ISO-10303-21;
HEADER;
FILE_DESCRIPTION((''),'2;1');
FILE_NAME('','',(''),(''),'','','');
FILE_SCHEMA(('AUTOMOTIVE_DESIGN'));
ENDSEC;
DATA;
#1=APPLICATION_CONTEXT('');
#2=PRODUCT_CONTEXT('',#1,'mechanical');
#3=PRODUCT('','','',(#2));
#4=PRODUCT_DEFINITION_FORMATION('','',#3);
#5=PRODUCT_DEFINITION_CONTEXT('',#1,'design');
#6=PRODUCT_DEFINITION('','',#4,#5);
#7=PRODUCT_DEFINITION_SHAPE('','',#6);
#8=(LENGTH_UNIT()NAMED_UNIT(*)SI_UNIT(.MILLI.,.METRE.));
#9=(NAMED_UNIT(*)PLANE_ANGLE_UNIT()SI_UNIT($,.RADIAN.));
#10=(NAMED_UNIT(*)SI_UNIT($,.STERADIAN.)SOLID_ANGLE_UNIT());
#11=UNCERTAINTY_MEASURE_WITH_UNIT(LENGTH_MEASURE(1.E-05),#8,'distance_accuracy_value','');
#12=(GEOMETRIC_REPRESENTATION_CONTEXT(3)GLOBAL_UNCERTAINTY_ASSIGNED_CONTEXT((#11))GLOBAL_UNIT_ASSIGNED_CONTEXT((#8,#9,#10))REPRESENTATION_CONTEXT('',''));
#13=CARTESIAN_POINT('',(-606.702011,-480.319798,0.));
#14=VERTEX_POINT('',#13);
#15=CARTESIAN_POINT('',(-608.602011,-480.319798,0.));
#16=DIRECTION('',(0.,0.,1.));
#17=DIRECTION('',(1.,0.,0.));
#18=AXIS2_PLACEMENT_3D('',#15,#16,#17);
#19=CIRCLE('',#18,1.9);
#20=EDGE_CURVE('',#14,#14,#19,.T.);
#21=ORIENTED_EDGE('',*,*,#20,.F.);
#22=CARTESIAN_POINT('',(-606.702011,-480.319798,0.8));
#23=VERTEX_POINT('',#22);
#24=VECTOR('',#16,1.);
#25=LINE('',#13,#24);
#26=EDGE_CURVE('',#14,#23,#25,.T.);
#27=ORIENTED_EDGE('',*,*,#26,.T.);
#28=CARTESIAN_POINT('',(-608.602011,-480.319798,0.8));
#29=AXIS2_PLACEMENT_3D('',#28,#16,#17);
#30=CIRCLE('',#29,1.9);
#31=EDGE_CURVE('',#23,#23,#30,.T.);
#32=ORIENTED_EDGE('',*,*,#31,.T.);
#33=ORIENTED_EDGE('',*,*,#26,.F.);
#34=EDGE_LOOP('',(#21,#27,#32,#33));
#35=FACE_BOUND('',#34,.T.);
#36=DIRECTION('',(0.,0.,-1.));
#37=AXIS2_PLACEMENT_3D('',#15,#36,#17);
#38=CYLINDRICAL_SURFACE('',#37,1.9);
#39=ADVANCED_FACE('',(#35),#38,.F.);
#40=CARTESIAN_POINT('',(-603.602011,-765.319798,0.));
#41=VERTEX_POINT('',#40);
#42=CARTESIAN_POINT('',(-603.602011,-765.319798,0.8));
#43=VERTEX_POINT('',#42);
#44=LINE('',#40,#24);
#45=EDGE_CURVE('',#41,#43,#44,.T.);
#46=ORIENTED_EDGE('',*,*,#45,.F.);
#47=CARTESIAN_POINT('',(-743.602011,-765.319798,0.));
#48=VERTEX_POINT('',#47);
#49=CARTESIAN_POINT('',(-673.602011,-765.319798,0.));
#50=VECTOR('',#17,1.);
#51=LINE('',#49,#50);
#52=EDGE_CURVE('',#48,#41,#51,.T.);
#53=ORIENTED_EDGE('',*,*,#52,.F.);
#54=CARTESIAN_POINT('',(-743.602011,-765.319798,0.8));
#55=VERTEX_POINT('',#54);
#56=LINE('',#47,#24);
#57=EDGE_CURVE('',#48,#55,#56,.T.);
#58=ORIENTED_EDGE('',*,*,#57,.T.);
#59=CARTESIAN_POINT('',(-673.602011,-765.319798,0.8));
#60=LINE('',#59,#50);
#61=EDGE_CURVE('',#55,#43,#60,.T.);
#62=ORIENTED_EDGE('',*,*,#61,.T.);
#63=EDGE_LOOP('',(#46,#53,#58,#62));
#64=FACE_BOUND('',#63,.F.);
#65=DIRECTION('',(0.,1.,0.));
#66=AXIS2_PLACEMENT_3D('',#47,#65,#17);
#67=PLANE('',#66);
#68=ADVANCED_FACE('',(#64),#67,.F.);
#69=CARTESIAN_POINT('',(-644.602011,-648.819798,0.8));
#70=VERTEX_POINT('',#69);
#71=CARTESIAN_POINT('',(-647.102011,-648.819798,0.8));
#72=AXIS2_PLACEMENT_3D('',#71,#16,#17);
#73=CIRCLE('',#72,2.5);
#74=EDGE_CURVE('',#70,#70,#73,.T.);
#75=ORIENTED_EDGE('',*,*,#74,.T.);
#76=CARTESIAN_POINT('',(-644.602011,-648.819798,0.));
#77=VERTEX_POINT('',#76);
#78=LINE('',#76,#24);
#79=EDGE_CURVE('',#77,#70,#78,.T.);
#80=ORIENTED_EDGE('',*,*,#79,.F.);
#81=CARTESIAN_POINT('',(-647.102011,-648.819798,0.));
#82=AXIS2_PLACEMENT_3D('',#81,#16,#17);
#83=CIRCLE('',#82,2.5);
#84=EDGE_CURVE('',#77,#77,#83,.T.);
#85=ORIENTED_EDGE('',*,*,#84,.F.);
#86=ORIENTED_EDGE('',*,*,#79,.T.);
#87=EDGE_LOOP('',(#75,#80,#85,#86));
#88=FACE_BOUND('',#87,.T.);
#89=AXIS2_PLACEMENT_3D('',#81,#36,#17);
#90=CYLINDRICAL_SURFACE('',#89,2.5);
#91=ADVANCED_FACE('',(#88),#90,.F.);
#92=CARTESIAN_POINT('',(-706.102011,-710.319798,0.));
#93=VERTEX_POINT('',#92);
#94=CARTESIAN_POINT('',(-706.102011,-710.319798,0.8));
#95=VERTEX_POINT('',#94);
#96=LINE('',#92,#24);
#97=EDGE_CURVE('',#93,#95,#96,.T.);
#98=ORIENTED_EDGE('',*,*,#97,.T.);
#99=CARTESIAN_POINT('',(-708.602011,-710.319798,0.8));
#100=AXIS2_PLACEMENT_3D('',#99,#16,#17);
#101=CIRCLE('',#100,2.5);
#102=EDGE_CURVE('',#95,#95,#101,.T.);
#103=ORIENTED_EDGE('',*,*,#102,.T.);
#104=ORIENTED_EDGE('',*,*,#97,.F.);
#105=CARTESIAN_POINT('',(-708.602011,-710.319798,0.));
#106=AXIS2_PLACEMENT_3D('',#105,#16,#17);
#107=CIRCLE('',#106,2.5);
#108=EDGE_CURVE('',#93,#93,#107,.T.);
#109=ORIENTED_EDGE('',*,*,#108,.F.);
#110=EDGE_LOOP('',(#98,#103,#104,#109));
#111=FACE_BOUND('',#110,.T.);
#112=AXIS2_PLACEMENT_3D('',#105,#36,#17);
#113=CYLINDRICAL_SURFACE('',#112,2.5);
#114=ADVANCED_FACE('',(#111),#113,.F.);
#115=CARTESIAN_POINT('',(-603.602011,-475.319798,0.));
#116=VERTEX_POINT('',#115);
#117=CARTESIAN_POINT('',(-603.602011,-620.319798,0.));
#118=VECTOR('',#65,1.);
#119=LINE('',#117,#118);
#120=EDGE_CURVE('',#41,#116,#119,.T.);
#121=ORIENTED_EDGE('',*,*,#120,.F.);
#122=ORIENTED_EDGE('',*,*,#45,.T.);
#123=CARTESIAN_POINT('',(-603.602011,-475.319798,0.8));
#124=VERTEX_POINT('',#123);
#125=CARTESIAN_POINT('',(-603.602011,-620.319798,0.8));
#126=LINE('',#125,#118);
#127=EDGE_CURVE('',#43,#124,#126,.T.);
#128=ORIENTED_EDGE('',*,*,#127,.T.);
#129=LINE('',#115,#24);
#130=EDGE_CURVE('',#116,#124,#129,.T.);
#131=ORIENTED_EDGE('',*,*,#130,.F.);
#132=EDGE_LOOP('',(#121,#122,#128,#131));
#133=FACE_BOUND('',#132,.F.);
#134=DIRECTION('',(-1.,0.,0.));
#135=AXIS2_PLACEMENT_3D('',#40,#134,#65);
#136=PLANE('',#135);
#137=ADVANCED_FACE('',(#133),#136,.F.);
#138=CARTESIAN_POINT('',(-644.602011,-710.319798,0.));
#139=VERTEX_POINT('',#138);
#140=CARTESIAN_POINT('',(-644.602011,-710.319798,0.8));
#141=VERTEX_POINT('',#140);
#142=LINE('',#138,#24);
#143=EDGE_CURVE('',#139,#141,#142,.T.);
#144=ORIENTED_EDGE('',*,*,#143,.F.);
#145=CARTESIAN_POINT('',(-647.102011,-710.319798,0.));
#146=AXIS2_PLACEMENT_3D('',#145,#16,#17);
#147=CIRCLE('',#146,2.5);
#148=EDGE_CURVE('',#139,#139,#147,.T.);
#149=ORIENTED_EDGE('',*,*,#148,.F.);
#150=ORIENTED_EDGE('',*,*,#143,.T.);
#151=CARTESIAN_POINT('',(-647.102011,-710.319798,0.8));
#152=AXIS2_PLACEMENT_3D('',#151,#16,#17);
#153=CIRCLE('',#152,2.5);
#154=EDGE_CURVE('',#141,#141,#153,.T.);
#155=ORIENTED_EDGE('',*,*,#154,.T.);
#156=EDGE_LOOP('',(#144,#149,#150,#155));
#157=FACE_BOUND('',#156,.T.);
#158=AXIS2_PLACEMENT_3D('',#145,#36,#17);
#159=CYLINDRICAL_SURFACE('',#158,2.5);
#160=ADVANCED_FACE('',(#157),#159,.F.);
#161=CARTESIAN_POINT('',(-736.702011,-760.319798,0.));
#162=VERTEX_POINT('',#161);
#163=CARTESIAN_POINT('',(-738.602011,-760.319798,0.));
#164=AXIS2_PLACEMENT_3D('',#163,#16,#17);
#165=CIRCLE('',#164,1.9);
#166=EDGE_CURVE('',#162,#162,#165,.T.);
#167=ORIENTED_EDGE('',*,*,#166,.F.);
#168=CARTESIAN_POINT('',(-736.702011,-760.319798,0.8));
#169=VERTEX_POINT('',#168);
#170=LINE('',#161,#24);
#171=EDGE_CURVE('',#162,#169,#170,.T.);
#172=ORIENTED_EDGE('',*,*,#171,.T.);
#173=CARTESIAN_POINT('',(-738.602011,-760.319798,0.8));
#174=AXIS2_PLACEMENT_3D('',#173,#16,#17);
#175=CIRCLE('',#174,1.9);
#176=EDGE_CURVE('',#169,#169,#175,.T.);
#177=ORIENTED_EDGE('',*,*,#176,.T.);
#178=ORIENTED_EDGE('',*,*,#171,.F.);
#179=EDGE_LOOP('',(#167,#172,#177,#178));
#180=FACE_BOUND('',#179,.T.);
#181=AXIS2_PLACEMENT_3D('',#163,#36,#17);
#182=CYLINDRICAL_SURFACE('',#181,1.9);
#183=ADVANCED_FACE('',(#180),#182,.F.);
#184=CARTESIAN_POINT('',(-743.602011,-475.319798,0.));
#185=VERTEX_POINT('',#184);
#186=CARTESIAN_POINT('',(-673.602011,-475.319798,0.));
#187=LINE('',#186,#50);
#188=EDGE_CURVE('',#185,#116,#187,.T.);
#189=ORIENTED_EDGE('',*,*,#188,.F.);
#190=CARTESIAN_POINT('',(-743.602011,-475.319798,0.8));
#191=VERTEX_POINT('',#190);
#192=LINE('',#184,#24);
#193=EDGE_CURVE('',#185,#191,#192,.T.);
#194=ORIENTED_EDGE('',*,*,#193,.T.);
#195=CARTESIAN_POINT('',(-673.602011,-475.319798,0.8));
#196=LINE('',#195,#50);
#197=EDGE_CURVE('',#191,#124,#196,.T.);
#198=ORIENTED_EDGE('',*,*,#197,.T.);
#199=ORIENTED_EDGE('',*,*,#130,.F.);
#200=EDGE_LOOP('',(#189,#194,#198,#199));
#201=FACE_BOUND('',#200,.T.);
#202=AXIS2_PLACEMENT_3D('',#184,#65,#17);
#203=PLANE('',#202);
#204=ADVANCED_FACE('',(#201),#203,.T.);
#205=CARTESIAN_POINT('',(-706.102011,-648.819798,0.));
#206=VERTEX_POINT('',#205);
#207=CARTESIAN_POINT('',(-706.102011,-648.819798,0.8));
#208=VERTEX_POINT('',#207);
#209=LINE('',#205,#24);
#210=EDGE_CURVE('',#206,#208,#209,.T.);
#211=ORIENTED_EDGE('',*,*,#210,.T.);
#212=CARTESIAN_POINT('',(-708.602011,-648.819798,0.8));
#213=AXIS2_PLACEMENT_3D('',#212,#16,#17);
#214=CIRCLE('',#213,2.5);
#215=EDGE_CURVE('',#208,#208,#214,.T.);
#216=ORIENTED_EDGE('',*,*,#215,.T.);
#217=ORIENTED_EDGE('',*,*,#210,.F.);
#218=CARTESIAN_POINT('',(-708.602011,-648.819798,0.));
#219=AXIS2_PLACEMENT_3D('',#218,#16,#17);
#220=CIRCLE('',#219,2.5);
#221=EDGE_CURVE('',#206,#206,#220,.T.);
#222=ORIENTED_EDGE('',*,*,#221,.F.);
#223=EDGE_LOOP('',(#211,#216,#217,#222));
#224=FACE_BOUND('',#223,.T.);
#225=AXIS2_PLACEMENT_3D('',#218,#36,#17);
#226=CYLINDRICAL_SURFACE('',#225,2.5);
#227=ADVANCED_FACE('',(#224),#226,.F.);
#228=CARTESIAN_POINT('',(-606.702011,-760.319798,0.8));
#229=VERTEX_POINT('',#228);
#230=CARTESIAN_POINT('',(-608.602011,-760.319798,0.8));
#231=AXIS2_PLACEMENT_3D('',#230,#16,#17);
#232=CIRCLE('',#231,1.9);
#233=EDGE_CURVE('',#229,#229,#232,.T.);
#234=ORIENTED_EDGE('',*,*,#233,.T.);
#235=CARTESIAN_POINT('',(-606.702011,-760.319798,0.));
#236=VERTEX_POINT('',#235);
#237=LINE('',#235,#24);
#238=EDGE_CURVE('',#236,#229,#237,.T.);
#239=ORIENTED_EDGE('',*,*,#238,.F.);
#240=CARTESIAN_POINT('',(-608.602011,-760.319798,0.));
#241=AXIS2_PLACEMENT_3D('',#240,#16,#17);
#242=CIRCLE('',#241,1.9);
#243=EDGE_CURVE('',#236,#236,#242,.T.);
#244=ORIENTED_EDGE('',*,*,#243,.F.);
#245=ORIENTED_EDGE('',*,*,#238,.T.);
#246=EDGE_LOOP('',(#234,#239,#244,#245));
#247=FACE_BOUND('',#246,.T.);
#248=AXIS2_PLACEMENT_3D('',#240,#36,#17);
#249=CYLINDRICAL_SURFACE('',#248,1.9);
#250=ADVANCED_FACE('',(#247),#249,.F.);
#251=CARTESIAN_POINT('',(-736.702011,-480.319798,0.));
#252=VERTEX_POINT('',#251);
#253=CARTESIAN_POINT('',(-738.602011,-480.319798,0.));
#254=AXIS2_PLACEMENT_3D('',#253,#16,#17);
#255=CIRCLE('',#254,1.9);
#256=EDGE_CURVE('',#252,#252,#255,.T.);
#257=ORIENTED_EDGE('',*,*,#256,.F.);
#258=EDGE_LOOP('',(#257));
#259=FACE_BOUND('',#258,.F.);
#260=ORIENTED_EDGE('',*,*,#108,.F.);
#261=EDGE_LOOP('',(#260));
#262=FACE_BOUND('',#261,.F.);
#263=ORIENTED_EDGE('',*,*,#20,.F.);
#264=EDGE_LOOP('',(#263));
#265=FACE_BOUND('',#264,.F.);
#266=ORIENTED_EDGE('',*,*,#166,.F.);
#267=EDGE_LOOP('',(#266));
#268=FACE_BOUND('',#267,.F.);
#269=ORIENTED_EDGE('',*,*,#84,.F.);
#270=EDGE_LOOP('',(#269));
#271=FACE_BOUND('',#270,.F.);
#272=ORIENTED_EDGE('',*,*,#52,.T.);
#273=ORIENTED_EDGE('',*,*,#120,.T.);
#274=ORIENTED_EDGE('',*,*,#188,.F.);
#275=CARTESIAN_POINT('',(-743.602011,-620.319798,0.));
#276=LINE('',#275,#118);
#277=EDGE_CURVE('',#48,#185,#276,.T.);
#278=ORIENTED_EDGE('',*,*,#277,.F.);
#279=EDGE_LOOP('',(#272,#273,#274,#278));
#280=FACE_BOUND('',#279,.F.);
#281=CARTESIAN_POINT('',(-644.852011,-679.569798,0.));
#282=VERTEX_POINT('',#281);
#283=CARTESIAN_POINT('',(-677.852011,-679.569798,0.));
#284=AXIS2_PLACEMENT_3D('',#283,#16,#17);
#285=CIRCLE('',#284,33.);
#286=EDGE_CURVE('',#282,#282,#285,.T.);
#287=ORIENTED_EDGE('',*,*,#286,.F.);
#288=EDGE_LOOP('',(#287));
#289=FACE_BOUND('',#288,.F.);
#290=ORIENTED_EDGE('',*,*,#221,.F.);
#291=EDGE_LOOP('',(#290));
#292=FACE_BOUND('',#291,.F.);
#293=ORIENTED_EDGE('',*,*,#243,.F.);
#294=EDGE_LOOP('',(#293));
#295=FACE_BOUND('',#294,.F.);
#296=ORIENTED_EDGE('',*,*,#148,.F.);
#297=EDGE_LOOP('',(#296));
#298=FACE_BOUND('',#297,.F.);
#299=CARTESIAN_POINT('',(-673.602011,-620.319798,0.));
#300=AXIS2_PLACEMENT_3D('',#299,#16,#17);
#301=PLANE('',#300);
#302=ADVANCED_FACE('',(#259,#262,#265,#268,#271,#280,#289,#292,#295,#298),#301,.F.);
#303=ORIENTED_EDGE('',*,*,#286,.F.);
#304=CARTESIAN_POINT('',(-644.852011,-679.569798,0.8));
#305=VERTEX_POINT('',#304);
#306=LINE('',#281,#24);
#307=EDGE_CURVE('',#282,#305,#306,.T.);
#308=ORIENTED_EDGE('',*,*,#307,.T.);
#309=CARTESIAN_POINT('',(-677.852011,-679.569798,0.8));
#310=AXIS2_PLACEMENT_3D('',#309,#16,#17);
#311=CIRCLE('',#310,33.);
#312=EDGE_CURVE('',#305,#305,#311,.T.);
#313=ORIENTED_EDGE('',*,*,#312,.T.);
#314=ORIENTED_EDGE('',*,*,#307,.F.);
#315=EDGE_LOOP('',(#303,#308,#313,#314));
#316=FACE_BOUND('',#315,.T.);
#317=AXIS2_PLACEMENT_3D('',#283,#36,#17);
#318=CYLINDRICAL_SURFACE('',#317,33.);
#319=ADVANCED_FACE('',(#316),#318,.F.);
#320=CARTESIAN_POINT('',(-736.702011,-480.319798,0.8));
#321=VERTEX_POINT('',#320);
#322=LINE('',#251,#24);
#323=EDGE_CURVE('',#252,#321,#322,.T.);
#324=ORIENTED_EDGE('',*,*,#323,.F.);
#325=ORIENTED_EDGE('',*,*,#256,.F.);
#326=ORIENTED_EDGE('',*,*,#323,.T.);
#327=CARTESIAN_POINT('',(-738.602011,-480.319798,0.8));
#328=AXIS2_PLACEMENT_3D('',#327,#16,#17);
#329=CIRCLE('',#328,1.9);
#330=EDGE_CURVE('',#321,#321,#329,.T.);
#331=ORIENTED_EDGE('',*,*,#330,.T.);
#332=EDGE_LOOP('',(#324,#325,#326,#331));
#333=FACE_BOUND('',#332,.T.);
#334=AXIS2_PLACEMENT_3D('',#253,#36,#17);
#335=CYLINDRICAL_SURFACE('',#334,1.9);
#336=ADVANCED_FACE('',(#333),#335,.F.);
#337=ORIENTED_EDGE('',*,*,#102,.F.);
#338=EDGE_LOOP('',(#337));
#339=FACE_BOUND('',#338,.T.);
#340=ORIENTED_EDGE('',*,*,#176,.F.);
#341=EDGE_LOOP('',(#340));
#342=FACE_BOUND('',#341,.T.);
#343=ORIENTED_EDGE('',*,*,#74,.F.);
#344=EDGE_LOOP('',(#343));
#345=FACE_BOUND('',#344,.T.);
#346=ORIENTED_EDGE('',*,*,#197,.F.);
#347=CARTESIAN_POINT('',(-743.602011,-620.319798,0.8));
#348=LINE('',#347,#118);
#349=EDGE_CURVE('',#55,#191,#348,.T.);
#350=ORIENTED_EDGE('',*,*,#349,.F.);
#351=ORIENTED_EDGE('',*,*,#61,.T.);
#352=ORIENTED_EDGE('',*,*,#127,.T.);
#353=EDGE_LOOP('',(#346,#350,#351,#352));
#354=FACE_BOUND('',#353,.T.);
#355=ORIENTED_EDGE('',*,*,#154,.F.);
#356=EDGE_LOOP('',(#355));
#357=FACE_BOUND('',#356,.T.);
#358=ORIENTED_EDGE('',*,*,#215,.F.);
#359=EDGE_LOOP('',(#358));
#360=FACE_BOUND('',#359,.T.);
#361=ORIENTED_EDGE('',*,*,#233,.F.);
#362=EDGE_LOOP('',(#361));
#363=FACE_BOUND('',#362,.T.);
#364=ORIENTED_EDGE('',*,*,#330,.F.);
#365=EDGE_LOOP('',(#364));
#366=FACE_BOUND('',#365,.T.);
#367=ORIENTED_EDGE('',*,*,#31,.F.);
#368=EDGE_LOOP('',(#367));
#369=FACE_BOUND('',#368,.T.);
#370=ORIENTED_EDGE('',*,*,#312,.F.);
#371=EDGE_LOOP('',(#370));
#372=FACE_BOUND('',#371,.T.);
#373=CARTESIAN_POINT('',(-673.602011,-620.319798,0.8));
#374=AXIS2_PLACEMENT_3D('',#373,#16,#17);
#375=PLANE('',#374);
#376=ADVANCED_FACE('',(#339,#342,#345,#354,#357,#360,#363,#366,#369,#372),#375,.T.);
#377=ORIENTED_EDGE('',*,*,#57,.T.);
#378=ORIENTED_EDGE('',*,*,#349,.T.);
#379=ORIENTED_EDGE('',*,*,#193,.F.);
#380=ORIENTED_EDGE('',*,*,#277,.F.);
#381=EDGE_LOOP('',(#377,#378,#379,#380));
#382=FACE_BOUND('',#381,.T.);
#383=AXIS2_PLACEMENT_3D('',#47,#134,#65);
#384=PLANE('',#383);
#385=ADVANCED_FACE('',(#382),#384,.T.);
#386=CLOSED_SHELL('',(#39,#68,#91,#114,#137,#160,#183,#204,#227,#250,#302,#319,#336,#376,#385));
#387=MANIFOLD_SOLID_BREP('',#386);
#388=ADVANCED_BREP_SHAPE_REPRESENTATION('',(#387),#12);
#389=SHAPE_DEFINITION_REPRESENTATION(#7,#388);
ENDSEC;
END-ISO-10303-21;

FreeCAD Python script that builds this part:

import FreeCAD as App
import Part
import Sketcher
from FreeCAD import Vector
Q = App.Units.Quantity

doc = App.newDocument("Part")
body = doc.addObject("PartDesign::Body", "Body")

# Sketch on XY plane
sketch1 = body.newObject("Sketcher::SketchObject", "Sketch")
sketch1.AttachmentSupport = (doc.getObject("XY_Plane"), [""])
sketch1.MapMode = "FlatFace"
sketch1.addGeometry(Part.LineSegment(Vector(-743.6, -475.3, 0), Vector(-743.6, -765.3, 0)), False)
sketch1.addGeometry(Part.LineSegment(Vector(-743.6, -765.3, 0), Vector(-603.6, -765.3, 0)), False)
sketch1.addGeometry(Part.LineSegment(Vector(-603.6, -765.3, 0), Vector(-603.6, -475.3, 0)), False)
sketch1.addGeometry(Part.LineSegment(Vector(-603.6, -475.3, 0), Vector(-743.6, -475.3, 0)), False)
sketch1.addGeometry(Part.Circle(Vector(-738.6, -760.3, 0), Vector(0, 0, 1), 1.9), False)
sketch1.addGeometry(Part.Circle(Vector(-708.6, -710.3, 0), Vector(0, 0, 1), 2.5), False)
sketch1.addGeometry(Part.Circle(Vector(-708.6, -648.8, 0), Vector(0, 0, 1), 2.5), False)
sketch1.addGeometry(Part.Circle(Vector(-677.9, -679.6, 0), Vector(0, 0, 1), 33), False)
sketch1.addGeometry(Part.Circle(Vector(-647.1, -710.3, 0), Vector(0, 0, 1), 2.5), False)
sketch1.addGeometry(Part.Circle(Vector(-608.6, -760.3, 0), Vector(0, 0, 1), 1.9), False)
sketch1.addGeometry(Part.Circle(Vector(-647.1, -648.8, 0), Vector(0, 0, 1), 2.5), False)
sketch1.addGeometry(Part.Circle(Vector(-738.6, -480.3, 0), Vector(0, 0, 1), 1.9), False)
sketch1.addGeometry(Part.Circle(Vector(-608.6, -480.3, 0), Vector(0, 0, 1), 1.9), False)
sketch1.addConstraint(Sketcher.Constraint("Coincident", 0, 2, 1, 1))
sketch1.addConstraint(Sketcher.Constraint("Coincident", 1, 2, 2, 1))
sketch1.addConstraint(Sketcher.Constraint("Coincident", 2, 2, 3, 1))
sketch1.addConstraint(Sketcher.Constraint("Coincident", 3, 2, 0, 1))
sketch1.addConstraint(Sketcher.Constraint("Vertical", 0))
sketch1.addConstraint(Sketcher.Constraint("Horizontal", 1))
sketch1.addConstraint(Sketcher.Constraint("Vertical", 2))
sketch1.addConstraint(Sketcher.Constraint("Horizontal", 3))
sketch1.addConstraint(Sketcher.Constraint("Equal", 5, 6))
sketch1.addConstraint(Sketcher.Constraint("Equal", 6, 8))
sketch1.addConstraint(Sketcher.Constraint("Equal", 4, 9))
sketch1.addConstraint(Sketcher.Constraint("Equal", 8, 10))
sketch1.addConstraint(Sketcher.Constraint("Equal", 9, 11))
sketch1.addConstraint(Sketcher.Constraint("Equal", 11, 12))
sketch1.addConstraint(Sketcher.Constraint("Horizontal", 5, 3, 8, 3))
sketch1.addConstraint(Sketcher.Constraint("Horizontal", 4, 3, 9, 3))
sketch1.addConstraint(Sketcher.Constraint("Horizontal", 6, 3, 10, 3))
sketch1.addConstraint(Sketcher.Constraint("Horizontal", 11, 3, 12, 3))
sketch1.addConstraint(Sketcher.Constraint("Vertical", 5, 3, 6, 3))
sketch1.addConstraint(Sketcher.Constraint("Vertical", 8, 3, 10, 3))
sketch1.addConstraint(Sketcher.Constraint("Vertical", 4, 3, 11, 3))
sketch1.addConstraint(Sketcher.Constraint("Vertical", 9, 3, 12, 3))
sketch1.addConstraint(Sketcher.Constraint("Diameter", 5, Q("5 mm")))
sketch1.addConstraint(Sketcher.Constraint("Diameter", 7, Q("66 mm")))
sketch1.addConstraint(Sketcher.Constraint("Diameter", 4, Q("3.8 mm")))
sketch1.addConstraint(Sketcher.Constraint("DistanceX", 1, 1, 1, 2, Q("140 mm")))
sketch1.addConstraint(Sketcher.Constraint("DistanceY", 0, 2, 0, 1, Q("290 mm")))
sketch1.addConstraint(Sketcher.Constraint("DistanceX", 4, 3, 5, 3, Q("30 mm")))
sketch1.addConstraint(Sketcher.Constraint("DistanceY", 4, 3, 5, 3, Q("50 mm")))
sketch1.addConstraint(Sketcher.Constraint("DistanceX", 5, 3, 9, 3, Q("100 mm")))
sketch1.addConstraint(Sketcher.Constraint("DistanceY", 5, 3, 11, 3, Q("230 mm")))
sketch1.addConstraint(Sketcher.Constraint("DistanceX", 0, 2, 4, 3, Q("5 mm")))
sketch1.addConstraint(Sketcher.Constraint("DistanceY", 0, 2, 4, 3, Q("5 mm")))
sketch1.addConstraint(Sketcher.Constraint("DistanceY", 5, 3, 6, 3, Q("61.5 mm")))
sketch1.addConstraint(Sketcher.Constraint("DistanceX", 5, 3, 8, 3, Q("61.5 mm")))
sketch1.addConstraint(Sketcher.Constraint("DistanceX", 5, 3, 7, 3, Q("30.75 mm")))
sketch1.addConstraint(Sketcher.Constraint("DistanceY", 5, 3, 7, 3, Q("30.75 mm")))
sketch1.addConstraint(Sketcher.Constraint("DistanceY", 4, 3, -1, 1, Q("760.319798 mm")))
sketch1.addConstraint(Sketcher.Constraint("DistanceX", 4, 3, -1, 1, Q("738.602011 mm")))
pad1 = body.newObject("PartDesign::Pad", "Pad")
pad1.Profile = sketch1
pad1.Length = 0.8

doc.recompute()
